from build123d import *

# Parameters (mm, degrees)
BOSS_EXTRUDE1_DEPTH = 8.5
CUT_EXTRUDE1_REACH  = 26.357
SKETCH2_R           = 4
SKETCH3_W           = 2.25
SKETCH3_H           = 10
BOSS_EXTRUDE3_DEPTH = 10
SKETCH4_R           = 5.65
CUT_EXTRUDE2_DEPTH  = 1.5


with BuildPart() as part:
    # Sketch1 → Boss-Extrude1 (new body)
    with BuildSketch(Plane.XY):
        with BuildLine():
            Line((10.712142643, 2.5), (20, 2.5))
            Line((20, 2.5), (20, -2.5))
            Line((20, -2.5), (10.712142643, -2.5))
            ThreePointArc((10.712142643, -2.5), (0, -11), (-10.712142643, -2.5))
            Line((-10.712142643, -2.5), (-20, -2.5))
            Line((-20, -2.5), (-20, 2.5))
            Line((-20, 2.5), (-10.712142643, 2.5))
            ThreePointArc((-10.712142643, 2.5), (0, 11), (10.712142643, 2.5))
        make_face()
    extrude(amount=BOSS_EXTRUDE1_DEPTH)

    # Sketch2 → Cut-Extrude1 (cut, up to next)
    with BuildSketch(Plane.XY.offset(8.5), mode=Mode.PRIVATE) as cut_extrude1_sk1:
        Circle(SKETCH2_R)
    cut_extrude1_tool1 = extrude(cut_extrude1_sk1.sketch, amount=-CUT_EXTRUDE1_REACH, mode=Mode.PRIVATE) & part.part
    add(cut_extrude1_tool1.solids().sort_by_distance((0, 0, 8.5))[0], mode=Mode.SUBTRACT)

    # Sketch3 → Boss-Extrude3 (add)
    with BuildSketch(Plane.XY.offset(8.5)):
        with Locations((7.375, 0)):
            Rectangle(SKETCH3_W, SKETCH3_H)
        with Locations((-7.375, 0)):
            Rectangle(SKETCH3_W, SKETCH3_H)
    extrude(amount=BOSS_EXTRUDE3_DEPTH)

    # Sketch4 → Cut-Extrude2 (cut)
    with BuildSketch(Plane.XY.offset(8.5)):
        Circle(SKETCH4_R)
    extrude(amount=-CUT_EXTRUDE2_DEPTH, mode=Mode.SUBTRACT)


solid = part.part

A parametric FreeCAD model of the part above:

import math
import FreeCAD as App
import Part
import Sketcher

V = App.Vector
Q = App.Units.Quantity


def add_polygon(sketch, points):
    """Adds a closed chain of lines whose ends are joined by coincident constraints."""
    first, n = sketch.GeometryCount, len(points)
    for a, b in zip(points, points[1:] + points[:1]):
        sketch.addGeometry(Part.LineSegment(App.Vector(*a, 0), App.Vector(*b, 0)), False)
    for i in range(n):
        sketch.addConstraint(Sketcher.Constraint("Coincident", first + i, 2, first + (i + 1) % n, 1))

doc = App.newDocument("Part")
body = doc.addObject("PartDesign::Body", "Body")

sketch1 = doc.addObject("Sketcher::SketchObject", "Sketch")
body.addObject(sketch1)
sketch1.AttachmentSupport = (doc.XY_Plane, [""])
sketch1.MapMode = "FlatFace"
sketch1.addGeometry(Part.LineSegment(V(20, 2, 0), V(11, 2, 0)), False)
sketch1.addGeometry(Part.ArcOfCircle(Part.Circle(V(0, 0, 0), V(0, 0, 1), 11), math.radians(13), math.radians(167)), False)
sketch1.addGeometry(Part.LineSegment(V(-11, 2, 0), V(-20, 2, 0)), False)
sketch1.addGeometry(Part.LineSegment(V(-20, 2, 0), V(-20, -2, 0)), False)
sketch1.addGeometry(Part.LineSegment(V(-20, -2, 0), V(-11, -2, 0)), False)
sketch1.addGeometry(Part.ArcOfCircle(Part.Circle(V(0, 0, 0), V(0, 0, 1), 11), math.radians(-167), math.radians(-13)), False)
sketch1.addGeometry(Part.LineSegment(V(11, -2, 0), V(20, -2, 0)), False)
sketch1.addGeometry(Part.LineSegment(V(20, -2, 0), V(20, 2, 0)), False)
sketch1.addConstraint(Sketcher.Constraint("Coincident", 0, 2, 1, 1))
sketch1.addConstraint(Sketcher.Constraint("Coincident", 1, 2, 2, 1))
sketch1.addConstraint(Sketcher.Constraint("Coincident", 2, 2, 3, 1))
sketch1.addConstraint(Sketcher.Constraint("Coincident", 3, 2, 4, 1))
sketch1.addConstraint(Sketcher.Constraint("Coincident", 4, 2, 5, 1))
sketch1.addConstraint(Sketcher.Constraint("Coincident", 5, 2, 6, 1))
sketch1.addConstraint(Sketcher.Constraint("Coincident", 6, 2, 7, 1))
sketch1.addConstraint(Sketcher.Constraint("Coincident", 7, 2, 0, 1))
sketch1.addConstraint(Sketcher.Constraint("Horizontal", 0))
sketch1.addConstraint(Sketcher.Constraint("Horizontal", 2))
sketch1.addConstraint(Sketcher.Constraint("Vertical", 3))
sketch1.addConstraint(Sketcher.Constraint("Horizontal", 4))
sketch1.addConstraint(Sketcher.Constraint("Horizontal", 6))
sketch1.addConstraint(Sketcher.Constraint("Vertical", 7))
sketch1.addConstraint(Sketcher.Constraint("Coincident", 1, 3, -1, 1))
sketch1.addConstraint(Sketcher.Constraint("Coincident", 5, 3, -1, 1))
sketch1.addConstraint(Sketcher.Constraint("Equal", 1, 5))
sketch1.addConstraint(Sketcher.Constraint("Symmetric", 2, 2, 6, 2, -1, 1))
sketch1.addConstraint(Sketcher.Constraint("Horizontal", 0, 2, 1, 2))
sketch1.addConstraint(Sketcher.Constraint("Horizontal", 4, 2, 5, 2))
sketch1.addConstraint(Sketcher.Constraint("Radius", 1, Q("11 mm")))
sketch1.addConstraint(Sketcher.Constraint("DistanceY", 3, 2, 3, 1, Q("5 mm")))
sketch1.addConstraint(Sketcher.Constraint("DistanceX", 2, 2, -1, 1, Q("20 mm")))
pad1 = doc.addObject("PartDesign::Pad", "Pad")
body.addObject(pad1)
pad1.Profile = sketch1
pad1.Length = 8.5

sketch2 = doc.addObject("Sketcher::SketchObject", "Sketch001")
body.addObject(sketch2)
sketch2.AttachmentSupport = (doc.XY_Plane, [""])
sketch2.MapMode = "FlatFace"
sketch2.AttachmentOffset = App.Placement(V(0, 0, 8.5), App.Rotation())
sketch2.addGeometry(Part.Circle(V(0, 0, 0), V(0, 0, 1), 4), False)
sketch2.addConstraint(Sketcher.Constraint("Coincident", 0, 3, -1, 1))
sketch2.addConstraint(Sketcher.Constraint("Diameter", 0, Q("8 mm")))
pocket1 = doc.addObject("PartDesign::Pocket", "Pocket")
body.addObject(pocket1)
pocket1.Profile = sketch2
pocket1.Type = "UpToFirst"

sketch3 = doc.addObject("Sketcher::SketchObject", "Sketch002")
body.addObject(sketch3)
sketch3.AttachmentSupport = (doc.XY_Plane, [""])
sketch3.MapMode = "FlatFace"
sketch3.AttachmentOffset = App.Placement(V(0, 0, 8.5), App.Rotation())
add_polygon(sketch3, [(6.2, 5), (6.2, -5), (8.5, -5), (8.5, 5)])
add_polygon(sketch3, [(-8.5, 5), (-8.5, -5), (-6.2, -5), (-6.2, 5)])
sketch3.addConstraint(Sketcher.Constraint("Vertical", 0))
sketch3.addConstraint(Sketcher.Constraint("Horizontal", 1))
sketch3.addConstraint(Sketcher.Constraint("Vertical", 2))
sketch3.addConstraint(Sketcher.Constraint("Horizontal", 3))
sketch3.addConstraint(Sketcher.Constraint("Vertical", 4))
sketch3.addConstraint(Sketcher.Constraint("Horizontal", 5))
sketch3.addConstraint(Sketcher.Constraint("Vertical", 6))
sketch3.addConstraint(Sketcher.Constraint("Horizontal", 7))
sketch3.addConstraint(Sketcher.Constraint("Symmetric", 2, 2, 4, 2, -1, 1))
sketch3.addConstraint(Sketcher.Constraint("Symmetric", 0, 2, 6, 2, -1, 1))
sketch3.addConstraint(Sketcher.Constraint("Horizontal", 1, 2, 4, 2))
sketch3.addConstraint(Sketcher.Constraint("DistanceY", 0, 2, 0, 1, Q("10 mm")))
sketch3.addConstraint(Sketcher.Constraint("DistanceX", 4, 2, 1, 2, Q("17 mm")))
sketch3.addConstraint(Sketcher.Constraint("DistanceX", 1, 1, 1, 2, Q("2.25 mm")))
pad2 = doc.addObject("PartDesign::Pad", "Pad001")
body.addObject(pad2)
pad2.Profile = sketch3
pad2.Length = 10

sketch4 = doc.addObject("Sketcher::SketchObject", "Sketch003")
body.addObject(sketch4)
sketch4.AttachmentSupport = (doc.XY_Plane, [""])
sketch4.MapMode = "FlatFace"
sketch4.AttachmentOffset = App.Placement(V(0, 0, 8.5), App.Rotation())
sketch4.addGeometry(Part.Circle(V(0, 0, 0), V(0, 0, 1), 6), False)
sketch4.addConstraint(Sketcher.Constraint("Coincident", 0, 3, -1, 1))
sketch4.addConstraint(Sketcher.Constraint("Diameter", 0, Q("11.3 mm")))
pocket2 = doc.addObject("PartDesign::Pocket", "Pocket001")
body.addObject(pocket2)
pocket2.Profile = sketch4
pocket2.Length = 1.5

doc.recompute()
